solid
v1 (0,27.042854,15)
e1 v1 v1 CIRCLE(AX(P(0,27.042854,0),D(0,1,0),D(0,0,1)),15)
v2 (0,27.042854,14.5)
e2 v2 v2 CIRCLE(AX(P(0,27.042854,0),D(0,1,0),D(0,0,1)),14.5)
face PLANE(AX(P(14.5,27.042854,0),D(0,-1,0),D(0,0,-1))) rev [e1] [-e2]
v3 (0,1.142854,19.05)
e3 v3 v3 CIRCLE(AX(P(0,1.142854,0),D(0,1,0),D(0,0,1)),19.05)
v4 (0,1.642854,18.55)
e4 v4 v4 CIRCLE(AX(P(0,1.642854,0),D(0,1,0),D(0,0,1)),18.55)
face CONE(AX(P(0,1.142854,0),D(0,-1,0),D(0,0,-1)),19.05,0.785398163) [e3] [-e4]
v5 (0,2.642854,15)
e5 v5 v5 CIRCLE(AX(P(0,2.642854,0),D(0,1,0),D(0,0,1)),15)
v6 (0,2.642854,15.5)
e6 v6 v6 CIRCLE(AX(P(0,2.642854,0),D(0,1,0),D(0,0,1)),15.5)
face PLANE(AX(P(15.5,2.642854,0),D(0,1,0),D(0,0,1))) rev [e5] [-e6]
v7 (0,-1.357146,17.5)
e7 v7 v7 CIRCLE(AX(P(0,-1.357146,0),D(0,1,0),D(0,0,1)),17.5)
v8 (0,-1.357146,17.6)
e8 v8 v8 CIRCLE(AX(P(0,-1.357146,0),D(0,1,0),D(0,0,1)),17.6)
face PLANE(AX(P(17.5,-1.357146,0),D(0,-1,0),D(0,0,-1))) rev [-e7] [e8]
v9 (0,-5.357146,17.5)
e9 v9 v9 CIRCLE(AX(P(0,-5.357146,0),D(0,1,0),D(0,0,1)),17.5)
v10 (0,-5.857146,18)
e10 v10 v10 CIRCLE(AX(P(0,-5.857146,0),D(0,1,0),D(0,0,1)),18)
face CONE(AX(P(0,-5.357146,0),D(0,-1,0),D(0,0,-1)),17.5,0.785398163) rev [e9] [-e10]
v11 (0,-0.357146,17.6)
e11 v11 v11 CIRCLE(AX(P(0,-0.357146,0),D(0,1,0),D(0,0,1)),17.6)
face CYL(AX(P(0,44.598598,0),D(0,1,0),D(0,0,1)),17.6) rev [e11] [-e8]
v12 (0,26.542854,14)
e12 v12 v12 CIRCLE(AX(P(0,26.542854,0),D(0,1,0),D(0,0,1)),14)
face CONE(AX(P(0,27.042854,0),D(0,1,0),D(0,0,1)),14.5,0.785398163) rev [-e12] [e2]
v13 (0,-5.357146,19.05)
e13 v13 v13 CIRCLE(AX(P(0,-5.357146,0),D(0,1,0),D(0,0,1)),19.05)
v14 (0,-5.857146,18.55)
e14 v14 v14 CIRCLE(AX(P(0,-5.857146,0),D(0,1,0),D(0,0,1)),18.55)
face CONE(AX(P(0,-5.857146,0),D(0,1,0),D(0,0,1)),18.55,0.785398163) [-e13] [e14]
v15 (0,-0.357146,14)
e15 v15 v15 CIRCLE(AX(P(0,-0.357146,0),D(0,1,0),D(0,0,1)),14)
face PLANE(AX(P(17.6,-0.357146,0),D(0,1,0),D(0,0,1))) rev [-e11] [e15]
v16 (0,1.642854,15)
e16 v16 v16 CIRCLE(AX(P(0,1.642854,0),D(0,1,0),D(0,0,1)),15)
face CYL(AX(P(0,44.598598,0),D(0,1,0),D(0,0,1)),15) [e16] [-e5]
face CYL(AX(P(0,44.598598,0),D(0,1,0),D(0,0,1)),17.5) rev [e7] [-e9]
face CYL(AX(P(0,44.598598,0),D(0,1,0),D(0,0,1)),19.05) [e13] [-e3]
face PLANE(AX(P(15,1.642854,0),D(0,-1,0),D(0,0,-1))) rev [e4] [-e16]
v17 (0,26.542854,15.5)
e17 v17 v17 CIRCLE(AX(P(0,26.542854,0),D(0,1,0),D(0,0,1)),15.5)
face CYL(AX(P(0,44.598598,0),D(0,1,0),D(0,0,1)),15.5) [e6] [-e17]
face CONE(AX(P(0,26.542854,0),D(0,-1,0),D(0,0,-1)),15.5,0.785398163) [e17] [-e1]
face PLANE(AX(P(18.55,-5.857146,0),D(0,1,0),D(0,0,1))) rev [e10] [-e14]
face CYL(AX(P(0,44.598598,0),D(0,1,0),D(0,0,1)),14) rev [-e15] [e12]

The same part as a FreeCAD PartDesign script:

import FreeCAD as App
import Part
import Sketcher

V = App.Vector
Q = App.Units.Quantity


def add_polygon(sketch, points):
    """Adds a closed chain of lines whose ends are joined by coincident constraints."""
    first, n = sketch.GeometryCount, len(points)
    for a, b in zip(points, points[1:] + points[:1]):
        sketch.addGeometry(Part.LineSegment(App.Vector(*a, 0), App.Vector(*b, 0)), False)
    for i in range(n):
        sketch.addConstraint(Sketcher.Constraint("Coincident", first + i, 2, first + (i + 1) % n, 1))

doc = App.newDocument("Part")
body = doc.addObject("PartDesign::Body", "Body")

# Sketch on XY plane
sketch1 = body.newObject("Sketcher::SketchObject", "Sketch")
sketch1.AttachmentSupport = (doc.getObject("XY_Plane"), [""])
sketch1.MapMode = "FlatFace"
add_polygon(sketch1, [(15, 27.042854), (14.5, 27.042854), (14, 26.542854), (14, -0.357146), (17.6, -0.357146), (17.6, -1.357146), (17.5, -1.357146), (17.5, -5.357146), (18, -5.857146), (18.55, -5.857146), (19.05, -5.357146), (19.05, 1.142854), (18.55, 1.642854), (15, 1.642854), (15, 2.642854), (15.5, 2.642854), (15.5, 26.542854)])  # lines 0-16
sketch1.addConstraint([
    Sketcher.Constraint("Horizontal", 0),
    Sketcher.Constraint("Vertical", 2),
    Sketcher.Constraint("Horizontal", 3),
    Sketcher.Constraint("Vertical", 4),
    Sketcher.Constraint("Horizontal", 5),
    Sketcher.Constraint("Vertical", 6),
    Sketcher.Constraint("Horizontal", 8),
    Sketcher.Constraint("Vertical", 10),
    Sketcher.Constraint("Horizontal", 12),
    Sketcher.Constraint("Vertical", 13),
    Sketcher.Constraint("Horizontal", 14),
    Sketcher.Constraint("Vertical", 15),
    Sketcher.Constraint("Perpendicular", 1, 7),
    Sketcher.Constraint("Perpendicular", 7, 9),
    Sketcher.Constraint("Perpendicular", 9, 11),
    Sketcher.Constraint("Parallel", 11, 16),
    Sketcher.Constraint("Horizontal", 6, 2, 9, 2),
    Sketcher.Constraint("Horizontal", 1, 2, 15, 2),
    Sketcher.Constraint("Vertical", 8, 2, 11, 2),
    Sketcher.Constraint("Vertical", 13, 2, 16, 2),
    Sketcher.Constraint("Equal", 0, 14),
    Sketcher.Constraint("Equal", 4, 13),
    Sketcher.Constraint("Equal", 1, 7),
    Sketcher.Constraint("Equal", 7, 9),
    Sketcher.Constraint("DistanceY", 4, 2, 4, 1, Q("1 mm")),
    Sketcher.Constraint("DistanceY", 6, 2, 6, 1, Q("4 mm")),
    Sketcher.Constraint("DistanceX", 0, 2, 0, 1, Q("0.5 mm")),
    Sketcher.Constraint("DistanceX", 3, 1, 3, 2, Q("3.6 mm")),
    Sketcher.Constraint("DistanceX", 5, 2, 5, 1, Q("0.1 mm")),
    Sketcher.Constraint("DistanceY", 2, 2, 2, 1, Q("26.9 mm")),
    Sketcher.Constraint("DistanceY", 10, 1, 10, 2, Q("6.5 mm")),
    Sketcher.Constraint("DistanceX", -1, 1, 1, 2, Q("14 mm")),
    Sketcher.Constraint("DistanceX", 8, 1, 8, 2, Q("0.55 mm")),
    Sketcher.Constraint("DistanceY", -1, 1, 0, 2, Q("27.042854 mm")),
])
revolution = body.newObject("PartDesign::Revolution", "Revolution")
revolution.Profile = sketch1
revolution.ReferenceAxis = (sketch1, ["V_Axis"])
revolution.Angle = 360

doc.recompute()
